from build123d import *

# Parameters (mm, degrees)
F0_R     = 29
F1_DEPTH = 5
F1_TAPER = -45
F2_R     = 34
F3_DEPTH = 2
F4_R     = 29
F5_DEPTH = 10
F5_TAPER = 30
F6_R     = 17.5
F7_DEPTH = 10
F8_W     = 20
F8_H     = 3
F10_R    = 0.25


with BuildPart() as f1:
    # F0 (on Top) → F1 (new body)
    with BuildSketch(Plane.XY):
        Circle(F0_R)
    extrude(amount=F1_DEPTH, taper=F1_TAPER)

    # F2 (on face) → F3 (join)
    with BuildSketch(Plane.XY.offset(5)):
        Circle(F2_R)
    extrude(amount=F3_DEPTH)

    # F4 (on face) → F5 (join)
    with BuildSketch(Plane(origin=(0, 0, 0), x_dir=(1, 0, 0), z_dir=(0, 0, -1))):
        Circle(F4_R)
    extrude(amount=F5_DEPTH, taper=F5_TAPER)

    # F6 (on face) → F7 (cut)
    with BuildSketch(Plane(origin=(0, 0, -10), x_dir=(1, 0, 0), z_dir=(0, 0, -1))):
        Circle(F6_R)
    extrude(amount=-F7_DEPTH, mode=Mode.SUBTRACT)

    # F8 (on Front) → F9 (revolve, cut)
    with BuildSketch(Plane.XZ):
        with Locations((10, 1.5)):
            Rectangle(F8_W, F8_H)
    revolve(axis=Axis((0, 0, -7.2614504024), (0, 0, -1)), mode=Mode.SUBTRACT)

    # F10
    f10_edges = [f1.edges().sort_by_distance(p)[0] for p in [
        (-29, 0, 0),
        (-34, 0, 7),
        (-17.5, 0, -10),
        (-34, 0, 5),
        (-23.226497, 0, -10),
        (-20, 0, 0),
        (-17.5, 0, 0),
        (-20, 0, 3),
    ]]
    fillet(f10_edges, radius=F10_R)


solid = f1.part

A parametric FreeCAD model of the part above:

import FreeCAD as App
import Part
import Sketcher

V = App.Vector


def edges_at(feature, points):
    """Names of the edges that pass closest to the given points."""
    edges = feature.Shape.Edges
    near = lambda p: min(range(len(edges)), key=lambda i: edges[i].distToShape(Part.Vertex(*p))[0])
    return sorted({f"Edge{near(p) + 1}" for p in points})


def add_polygon(sketch, points):
    """Adds a closed chain of lines whose ends are joined by coincident constraints."""
    first, n = sketch.GeometryCount, len(points)
    for a, b in zip(points, points[1:] + points[:1]):
        sketch.addGeometry(Part.LineSegment(App.Vector(*a, 0), App.Vector(*b, 0)), False)
    for i in range(n):
        sketch.addConstraint(Sketcher.Constraint("Coincident", first + i, 2, first + (i + 1) % n, 1))

doc = App.newDocument("Part")
body = doc.addObject("PartDesign::Body", "Body")

sketch1 = body.newObject("Sketcher::SketchObject", "Sketch")
sketch1.AttachmentSupport = (doc.getObject("XY_Plane"), [""])
sketch1.MapMode = "FlatFace"
sketch1.addGeometry(Part.Circle(V(0, 0, 0), V(0, 0, 1), 29), False)
sketch1.addConstraint([
    Sketcher.Constraint("Coincident", 0, 3, -1, 1),
    Sketcher.Constraint("Diameter", 0, 58.0),
])
pad1 = body.newObject("PartDesign::Pad", "Pad")
pad1.Profile = sketch1
pad1.Length = 5
pad1.TaperAngle = 45

sketch2 = body.newObject("Sketcher::SketchObject", "Sketch001")
sketch2.AttachmentSupport = (doc.getObject("XY_Plane"), [""])
sketch2.MapMode = "FlatFace"
sketch2.AttachmentOffset = App.Placement(V(0, 0, 5), App.Rotation())
sketch2.addGeometry(Part.Circle(V(0, 0, 0), V(0, 0, 1), 34), False)
sketch2.addConstraint([
    Sketcher.Constraint("Coincident", 0, 3, -1, 1),
    Sketcher.Constraint("Diameter", 0, 68.0),
])
pad2 = body.newObject("PartDesign::Pad", "Pad001")
pad2.Profile = sketch2
pad2.Length = 2

sketch3 = body.newObject("Sketcher::SketchObject", "Sketch002")
sketch3.AttachmentSupport = (doc.getObject("XY_Plane"), [""])
sketch3.MapMode = "FlatFace"
sketch3.addGeometry(Part.Circle(V(0, 0, 0), V(0, 0, 1), 29), False)
sketch3.addConstraint([
    Sketcher.Constraint("Coincident", 0, 3, -1, 1),
    Sketcher.Constraint("Diameter", 0, 58.0),
])
pad3 = body.newObject("PartDesign::Pad", "Pad002")
pad3.Profile = sketch3
pad3.Length = 10
pad3.Reversed = True
pad3.TaperAngle = -30

sketch4 = body.newObject("Sketcher::SketchObject", "Sketch003")
sketch4.AttachmentSupport = (doc.getObject("XY_Plane"), [""])
sketch4.MapMode = "FlatFace"
sketch4.AttachmentOffset = App.Placement(V(0, 0, -10), App.Rotation())
sketch4.addGeometry(Part.Circle(V(0, 0, 0), V(0, 0, 1), 18), False)
sketch4.addConstraint([
    Sketcher.Constraint("Coincident", 0, 3, -1, 1),
    Sketcher.Constraint("Diameter", 0, 35.0),
])
pocket1 = body.newObject("PartDesign::Pocket", "Pocket")
pocket1.Profile = sketch4
pocket1.Length = 10
pocket1.Reversed = True

sketch5 = body.newObject("Sketcher::SketchObject", "Sketch004")
sketch5.AttachmentSupport = (doc.getObject("XZ_Plane"), [""])
sketch5.MapMode = "FlatFace"
add_polygon(sketch5, [(0, 3), (0, 0), (20, 0), (20, 3)])
sketch5.addConstraint([
    Sketcher.Constraint("Vertical", 0),
    Sketcher.Constraint("Horizontal", 1),
    Sketcher.Constraint("Vertical", 2),
    Sketcher.Constraint("Horizontal", 3),
    Sketcher.Constraint("Coincident", 0, 2, -1, 1),
    Sketcher.Constraint("DistanceX", 1, 1, 1, 2, 20.0),
    Sketcher.Constraint("DistanceY", 0, 2, 0, 1, 3.0),
])
groove = body.newObject("PartDesign::Groove", "Groove")
groove.Profile = sketch5
groove.ReferenceAxis = (sketch5, ["V_Axis"])
groove.Angle = 360
doc.recompute()

fillet = body.newObject("PartDesign::Fillet", "Fillet")
fillet.Base = (groove, edges_at(groove, [
    (-29, 0, 0),
    (-34, 0, 7),
    (-17.5, 0, -10),
    (-34, 0, 5),
    (-23.226, 0, -10),
    (-20, 0, 0),
    (-17.5, 0, 0),
    (-20, 0, 3),
]))
fillet.Radius = 0.25

doc.recompute()
